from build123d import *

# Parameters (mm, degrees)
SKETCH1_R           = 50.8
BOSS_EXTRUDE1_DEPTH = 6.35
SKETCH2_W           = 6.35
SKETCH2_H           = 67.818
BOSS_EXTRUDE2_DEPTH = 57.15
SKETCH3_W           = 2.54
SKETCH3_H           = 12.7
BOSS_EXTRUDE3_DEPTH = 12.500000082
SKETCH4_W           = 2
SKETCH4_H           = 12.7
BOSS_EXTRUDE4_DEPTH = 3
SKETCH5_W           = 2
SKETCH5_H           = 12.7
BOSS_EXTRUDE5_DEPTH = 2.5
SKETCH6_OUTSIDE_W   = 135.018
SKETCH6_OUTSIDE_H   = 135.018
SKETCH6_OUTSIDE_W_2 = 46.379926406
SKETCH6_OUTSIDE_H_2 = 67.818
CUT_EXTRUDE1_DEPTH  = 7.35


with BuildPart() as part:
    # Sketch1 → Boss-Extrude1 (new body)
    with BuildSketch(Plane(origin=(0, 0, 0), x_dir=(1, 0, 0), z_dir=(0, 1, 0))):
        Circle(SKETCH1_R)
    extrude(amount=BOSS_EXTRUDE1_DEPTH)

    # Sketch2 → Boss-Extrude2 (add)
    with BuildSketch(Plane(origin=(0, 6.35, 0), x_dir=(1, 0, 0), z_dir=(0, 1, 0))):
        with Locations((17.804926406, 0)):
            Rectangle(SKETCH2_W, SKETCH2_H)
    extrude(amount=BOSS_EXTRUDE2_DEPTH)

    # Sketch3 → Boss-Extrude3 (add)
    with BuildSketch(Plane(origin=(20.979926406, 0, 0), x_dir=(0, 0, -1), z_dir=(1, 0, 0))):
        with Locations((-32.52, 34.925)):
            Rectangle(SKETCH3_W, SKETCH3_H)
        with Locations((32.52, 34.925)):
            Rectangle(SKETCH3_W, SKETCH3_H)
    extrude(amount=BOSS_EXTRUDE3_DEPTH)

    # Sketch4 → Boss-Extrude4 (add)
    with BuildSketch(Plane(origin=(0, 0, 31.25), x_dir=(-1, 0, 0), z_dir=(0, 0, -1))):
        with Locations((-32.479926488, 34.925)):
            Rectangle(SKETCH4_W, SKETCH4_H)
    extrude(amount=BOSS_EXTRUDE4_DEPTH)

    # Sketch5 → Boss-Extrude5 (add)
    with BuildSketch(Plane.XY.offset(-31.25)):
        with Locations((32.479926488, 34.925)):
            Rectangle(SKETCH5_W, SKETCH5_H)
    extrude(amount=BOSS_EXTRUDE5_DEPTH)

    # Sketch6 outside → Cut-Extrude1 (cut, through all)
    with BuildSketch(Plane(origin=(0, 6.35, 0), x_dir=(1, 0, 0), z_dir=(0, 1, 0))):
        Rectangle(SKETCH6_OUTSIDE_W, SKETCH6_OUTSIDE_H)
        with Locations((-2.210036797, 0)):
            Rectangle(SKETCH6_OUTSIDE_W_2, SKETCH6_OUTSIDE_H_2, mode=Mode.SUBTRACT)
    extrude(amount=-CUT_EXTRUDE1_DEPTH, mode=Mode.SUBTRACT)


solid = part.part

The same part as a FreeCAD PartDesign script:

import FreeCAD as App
import Part
import Sketcher

V = App.Vector
Q = App.Units.Quantity


def add_polygon(sketch, points):
    """Adds a closed chain of lines whose ends are joined by coincident constraints."""
    first, n = sketch.GeometryCount, len(points)
    for a, b in zip(points, points[1:] + points[:1]):
        sketch.addGeometry(Part.LineSegment(App.Vector(*a, 0), App.Vector(*b, 0)), False)
    for i in range(n):
        sketch.addConstraint(Sketcher.Constraint("Coincident", first + i, 2, first + (i + 1) % n, 1))

doc = App.newDocument("Part")
body = doc.addObject("PartDesign::Body", "Body")

sketch1 = body.newObject("Sketcher::SketchObject", "Sketch")
sketch1.AttachmentSupport = (doc.getObject("XZ_Plane"), [""])
sketch1.MapMode = "FlatFace"
sketch1.addGeometry(Part.Circle(V(0, 0, 0), V(0, 0, 1), 51), False)
sketch1.addConstraint([
    Sketcher.Constraint("Coincident", 0, 3, -1, 1),
    Sketcher.Constraint("Diameter", 0, Q("4 in")),
])
pad1 = body.newObject("PartDesign::Pad", "Pad")
pad1.Profile = sketch1
pad1.Length = Q("0.25 in")
pad1.Reversed = True

sketch2 = body.newObject("Sketcher::SketchObject", "Sketch001")
sketch2.AttachmentSupport = (doc.getObject("XZ_Plane"), [""])
sketch2.MapMode = "FlatFace"
sketch2.AttachmentOffset = App.Placement(V(0, 0, -0.25 * 25.4), App.Rotation())
add_polygon(sketch2, [(15, -34), (15, 34), (21, 34), (21, -34)])
sketch2.addConstraint([
    Sketcher.Constraint("Vertical", 0),
    Sketcher.Constraint("Horizontal", 1),
    Sketcher.Constraint("Vertical", 2),
    Sketcher.Constraint("Horizontal", 3),
    Sketcher.Constraint("DistanceX", 1, 1, 1, 2, Q("0.25 in")),
    Sketcher.Constraint("DistanceY", 0, 1, 0, 2, Q("2.67 in")),
    Sketcher.Constraint("DistanceY", -1, 1, 0, 2, Q("1.335 in")),
    Sketcher.Constraint("DistanceX", -1, 1, 0, 2, Q("14.629926 mm")),
])
pad2 = body.newObject("PartDesign::Pad", "Pad001")
pad2.Profile = sketch2
pad2.Length = Q("2.25 in")
pad2.Reversed = True

sketch3 = body.newObject("Sketcher::SketchObject", "Sketch002")
sketch3.AttachmentSupport = (doc.getObject("YZ_Plane"), [""])
sketch3.MapMode = "FlatFace"
sketch3.AttachmentOffset = App.Placement(V(0, 0, 20.979926), App.Rotation())
add_polygon(sketch3, [(41.3, 33.8), (28.6, 33.8), (28.6, 31.2), (41.3, 31.2)])
add_polygon(sketch3, [(41.3, -31.2), (28.6, -31.2), (28.6, -33.8), (41.3, -33.8)])
sketch3.addConstraint([
    Sketcher.Constraint("Horizontal", 0),
    Sketcher.Constraint("Vertical", 1),
    Sketcher.Constraint("Horizontal", 2),
    Sketcher.Constraint("Vertical", 3),
    Sketcher.Constraint("Horizontal", 4),
    Sketcher.Constraint("Vertical", 5),
    Sketcher.Constraint("Horizontal", 6),
    Sketcher.Constraint("Vertical", 7),
    Sketcher.Constraint("Symmetric", 1, 2, 4, 2, -1),
    Sketcher.Constraint("Symmetric", 3, 2, 6, 2, -1),
    Sketcher.Constraint("DistanceX", 0, 2, 0, 1, Q("0.5 in")),
    Sketcher.Constraint("DistanceY", 1, 2, 1, 1, Q("0.1 in")),
    Sketcher.Constraint("DistanceX", -1, 1, 0, 2, Q("1.125 in")),
    Sketcher.Constraint("DistanceY", -1, 1, 0, 2, Q("33.79 mm")),
])
pad3 = body.newObject("PartDesign::Pad", "Pad002")
pad3.Profile = sketch3
pad3.Length = 12.5

sketch4 = body.newObject("Sketcher::SketchObject", "Sketch003")
sketch4.AttachmentSupport = (doc.getObject("XY_Plane"), [""])
sketch4.MapMode = "FlatFace"
sketch4.AttachmentOffset = App.Placement(V(0, 0, 31.25), App.Rotation())
add_polygon(sketch4, [(33.5, 41.3), (33.5, 28.6), (31.5, 28.6), (31.5, 41.3)])
sketch4.addConstraint([
    Sketcher.Constraint("Vertical", 0),
    Sketcher.Constraint("Horizontal", 1),
    Sketcher.Constraint("Vertical", 2),
    Sketcher.Constraint("Horizontal", 3),
    Sketcher.Constraint("DistanceY", 0, 2, 0, 1, Q("0.5 in")),
    Sketcher.Constraint("DistanceY", -1, 1, 0, 2, Q("1.125 in")),
    Sketcher.Constraint("DistanceX", 1, 2, 1, 1, Q("2 mm")),
    Sketcher.Constraint("DistanceX", -1, 1, 0, 2, Q("33.479926 mm")),
])
pad4 = body.newObject("PartDesign::Pad", "Pad003")
pad4.Profile = sketch4
pad4.Length = 3
pad4.Reversed = True

sketch5 = body.newObject("Sketcher::SketchObject", "Sketch004")
sketch5.AttachmentSupport = (doc.getObject("XY_Plane"), [""])
sketch5.MapMode = "FlatFace"
sketch5.AttachmentOffset = App.Placement(V(0, 0, -31.25), App.Rotation())
add_polygon(sketch5, [(31.5, 41.3), (31.5, 28.6), (33.5, 28.6), (33.5, 41.3)])
sketch5.addConstraint([
    Sketcher.Constraint("Vertical", 0),
    Sketcher.Constraint("Horizontal", 1),
    Sketcher.Constraint("Vertical", 2),
    Sketcher.Constraint("Horizontal", 3),
    Sketcher.Constraint("DistanceY", 0, 2, 0, 1, Q("0.5 in")),
    Sketcher.Constraint("DistanceY", -1, 1, 0, 2, Q("1.125 in")),
    Sketcher.Constraint("DistanceX", 1, 1, 1, 2, Q("2 mm")),
    Sketcher.Constraint("DistanceX", -1, 1, 0, 2, Q("31.479926 mm")),
])
pad5 = body.newObject("PartDesign::Pad", "Pad004")
pad5.Profile = sketch5
pad5.Length = 2.5

sketch6 = body.newObject("Sketcher::SketchObject", "Sketch005")
sketch6.AttachmentSupport = (doc.getObject("XZ_Plane"), [""])
sketch6.MapMode = "FlatFace"
sketch6.AttachmentOffset = App.Placement(V(0, 0, -0.25 * 25.4), App.Rotation())
add_polygon(sketch6, [(-68, -68), (-68, 68), (68, 68), (68, -68)])
add_polygon(sketch6, [(21, 34), (-25, 34), (-25, -34), (21, -34)])
sketch6.addConstraint([
    Sketcher.Constraint("Vertical", 0),
    Sketcher.Constraint("Horizontal", 1),
    Sketcher.Constraint("Vertical", 2),
    Sketcher.Constraint("Horizontal", 3),
    Sketcher.Constraint("Horizontal", 4),
    Sketcher.Constraint("Vertical", 5),
    Sketcher.Constraint("Horizontal", 6),
    Sketcher.Constraint("Vertical", 7),
    Sketcher.Constraint("Symmetric", 0, 2, 2, 2, -1, 1),
    Sketcher.Constraint("Equal", 3, 0),
    Sketcher.Constraint("DistanceX", 4, 2, -1, 1, Q("1 in")),
    Sketcher.Constraint("DistanceY", 5, 2, 5, 1, Q("2.67 in")),
    Sketcher.Constraint("DistanceY", -1, 1, 4, 2, Q("1.335 in")),
    Sketcher.Constraint("DistanceX", 1, 1, 1, 2, Q("135.018 mm")),
    Sketcher.Constraint("DistanceX", 4, 2, 4, 1, Q("46.379926 mm")),
])
pocket1 = body.newObject("PartDesign::Pocket", "Pocket")
pocket1.Profile = sketch6
pocket1.Type = "ThroughAll"
pocket1.Reversed = True

doc.recompute()
